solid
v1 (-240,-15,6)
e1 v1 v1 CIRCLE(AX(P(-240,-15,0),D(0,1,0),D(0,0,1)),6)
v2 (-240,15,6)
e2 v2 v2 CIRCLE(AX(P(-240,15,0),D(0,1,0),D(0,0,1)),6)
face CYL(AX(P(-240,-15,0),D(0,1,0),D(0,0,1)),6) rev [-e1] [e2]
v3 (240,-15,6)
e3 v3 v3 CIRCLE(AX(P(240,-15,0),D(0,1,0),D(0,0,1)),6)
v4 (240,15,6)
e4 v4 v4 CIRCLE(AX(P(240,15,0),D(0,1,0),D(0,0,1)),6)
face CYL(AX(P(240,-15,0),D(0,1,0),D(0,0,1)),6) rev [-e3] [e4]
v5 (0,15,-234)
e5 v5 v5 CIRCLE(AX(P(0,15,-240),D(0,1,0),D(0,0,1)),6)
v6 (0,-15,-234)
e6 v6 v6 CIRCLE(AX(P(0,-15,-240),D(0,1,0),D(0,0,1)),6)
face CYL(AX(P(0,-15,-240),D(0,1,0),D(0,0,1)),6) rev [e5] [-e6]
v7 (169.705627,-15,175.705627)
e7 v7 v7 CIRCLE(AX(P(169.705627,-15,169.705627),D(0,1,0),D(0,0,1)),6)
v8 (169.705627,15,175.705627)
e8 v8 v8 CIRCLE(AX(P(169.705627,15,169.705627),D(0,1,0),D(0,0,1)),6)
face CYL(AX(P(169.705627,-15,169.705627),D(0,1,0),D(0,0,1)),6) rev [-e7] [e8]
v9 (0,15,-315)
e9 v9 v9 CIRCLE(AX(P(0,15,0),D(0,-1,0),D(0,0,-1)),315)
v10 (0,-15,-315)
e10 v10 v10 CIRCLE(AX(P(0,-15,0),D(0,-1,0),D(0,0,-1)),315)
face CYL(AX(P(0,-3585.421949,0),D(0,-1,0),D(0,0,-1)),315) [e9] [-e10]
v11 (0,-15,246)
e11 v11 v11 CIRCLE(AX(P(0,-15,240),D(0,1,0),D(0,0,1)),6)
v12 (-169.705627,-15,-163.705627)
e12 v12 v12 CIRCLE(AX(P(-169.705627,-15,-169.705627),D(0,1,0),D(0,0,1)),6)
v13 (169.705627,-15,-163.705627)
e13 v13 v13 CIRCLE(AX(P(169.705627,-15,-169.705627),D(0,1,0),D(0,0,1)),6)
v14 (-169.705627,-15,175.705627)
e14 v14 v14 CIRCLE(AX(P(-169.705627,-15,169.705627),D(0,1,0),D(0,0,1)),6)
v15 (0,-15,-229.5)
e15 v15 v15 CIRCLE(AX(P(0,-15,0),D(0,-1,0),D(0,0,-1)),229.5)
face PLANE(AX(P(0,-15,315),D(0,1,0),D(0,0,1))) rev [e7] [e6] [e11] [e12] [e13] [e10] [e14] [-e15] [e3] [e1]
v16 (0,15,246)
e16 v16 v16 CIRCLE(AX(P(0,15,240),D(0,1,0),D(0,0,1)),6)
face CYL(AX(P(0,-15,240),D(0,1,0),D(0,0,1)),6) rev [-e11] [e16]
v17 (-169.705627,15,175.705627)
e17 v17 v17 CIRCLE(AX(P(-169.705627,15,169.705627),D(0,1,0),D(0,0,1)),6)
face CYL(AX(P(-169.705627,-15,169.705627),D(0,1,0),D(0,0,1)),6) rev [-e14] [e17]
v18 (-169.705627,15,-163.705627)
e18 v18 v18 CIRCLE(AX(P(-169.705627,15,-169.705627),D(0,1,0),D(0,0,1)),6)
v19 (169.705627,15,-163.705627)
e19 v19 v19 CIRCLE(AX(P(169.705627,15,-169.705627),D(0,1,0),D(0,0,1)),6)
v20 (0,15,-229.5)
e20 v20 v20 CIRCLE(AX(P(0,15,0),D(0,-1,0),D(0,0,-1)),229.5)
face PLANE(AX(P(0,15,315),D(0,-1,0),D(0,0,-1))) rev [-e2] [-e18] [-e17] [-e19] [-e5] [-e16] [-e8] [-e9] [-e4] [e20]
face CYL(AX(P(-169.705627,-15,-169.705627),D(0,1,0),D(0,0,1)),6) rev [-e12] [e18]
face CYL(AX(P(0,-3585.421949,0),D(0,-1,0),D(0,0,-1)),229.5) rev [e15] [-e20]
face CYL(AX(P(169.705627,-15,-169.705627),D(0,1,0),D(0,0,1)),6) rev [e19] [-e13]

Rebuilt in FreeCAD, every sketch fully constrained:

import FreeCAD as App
import Part
import Sketcher

V = App.Vector
Q = App.Units.Quantity

doc = App.newDocument("Part")
body = doc.addObject("PartDesign::Body", "Body")

# Sketch on YZ plane
sketch1 = body.newObject("Sketcher::SketchObject", "Sketch")
sketch1.AttachmentSupport = (doc.getObject("YZ_Plane"), [""])
sketch1.MapMode = "FlatFace"
sketch1.addGeometry(Part.LineSegment(V(15, 315, 0), V(-15, 315, 0)), False)
sketch1.addGeometry(Part.LineSegment(V(-15, 315, 0), V(-15, 230, 0)), False)
sketch1.addGeometry(Part.LineSegment(V(-15, 230, 0), V(15, 230, 0)), False)
sketch1.addGeometry(Part.LineSegment(V(15, 230, 0), V(15, 315, 0)), False)
sketch1.addConstraint(Sketcher.Constraint("Coincident", 0, 2, 1, 1))
sketch1.addConstraint(Sketcher.Constraint("Coincident", 1, 2, 2, 1))
sketch1.addConstraint(Sketcher.Constraint("Coincident", 2, 2, 3, 1))
sketch1.addConstraint(Sketcher.Constraint("Coincident", 3, 2, 0, 1))
sketch1.addConstraint(Sketcher.Constraint("Horizontal", 0))
sketch1.addConstraint(Sketcher.Constraint("Vertical", 1))
sketch1.addConstraint(Sketcher.Constraint("Horizontal", 2))
sketch1.addConstraint(Sketcher.Constraint("Vertical", 3))
sketch1.addConstraint(Sketcher.Constraint("DistanceX", 0, 2, 0, 1, Q("30 mm")))
sketch1.addConstraint(Sketcher.Constraint("DistanceY", 1, 2, 1, 1, Q("85.5 mm")))
sketch1.addConstraint(Sketcher.Constraint("DistanceX", 0, 2, -1, 1, Q("15 mm")))
sketch1.addConstraint(Sketcher.Constraint("DistanceY", -1, 1, 0, 2, Q("315 mm")))
revolution = body.newObject("PartDesign::Revolution", "Revolution")
revolution.Profile = sketch1
revolution.ReferenceAxis = (sketch1, ["H_Axis"])
revolution.Angle = 360

# Sketch on XZ plane
sketch2 = body.newObject("Sketcher::SketchObject", "Sketch001")
sketch2.AttachmentSupport = (doc.getObject("XZ_Plane"), [""])
sketch2.MapMode = "FlatFace"
sketch2.AttachmentOffset = App.Placement(V(0, 0, -15), App.Rotation())
sketch2.addGeometry(Part.Circle(V(0, -240, 0), V(0, 0, 1), 6), False)
sketch2.addGeometry(Part.Circle(V(170, -170, 0), V(0, 0, 1), 6), False)
sketch2.addGeometry(Part.Circle(V(240, 0, 0), V(0, 0, 1), 6), False)
sketch2.addGeometry(Part.Circle(V(170, 170, 0), V(0, 0, 1), 6), False)
sketch2.addGeometry(Part.Circle(V(0, 240, 0), V(0, 0, 1), 6), False)
sketch2.addGeometry(Part.Circle(V(-170, 170, 0), V(0, 0, 1), 6), False)
sketch2.addGeometry(Part.Circle(V(-240, 0, 0), V(0, 0, 1), 6), False)
sketch2.addGeometry(Part.Circle(V(-170, -170, 0), V(0, 0, 1), 6), False)
sketch2.addConstraint(Sketcher.Constraint("Equal", 0, 1))
sketch2.addConstraint(Sketcher.Constraint("Equal", 1, 2))
sketch2.addConstraint(Sketcher.Constraint("Equal", 2, 3))
sketch2.addConstraint(Sketcher.Constraint("Equal", 3, 4))
sketch2.addConstraint(Sketcher.Constraint("Equal", 4, 5))
sketch2.addConstraint(Sketcher.Constraint("Equal", 5, 6))
sketch2.addConstraint(Sketcher.Constraint("Equal", 6, 7))
sketch2.addConstraint(Sketcher.Constraint("Symmetric", 0, 3, 4, 3, -1, 1))
sketch2.addConstraint(Sketcher.Constraint("Symmetric", 1, 3, 5, 3, -1, 1))
sketch2.addConstraint(Sketcher.Constraint("Symmetric", 2, 3, 6, 3, -1, 1))
sketch2.addConstraint(Sketcher.Constraint("Symmetric", 3, 3, 7, 3, -1, 1))
sketch2.addConstraint(Sketcher.Constraint("Symmetric", 3, 3, 5, 3, -2))
sketch2.addConstraint(Sketcher.Constraint("PointOnObject", 0, 3, -2))
sketch2.addConstraint(Sketcher.Constraint("PointOnObject", 2, 3, -1))
sketch2.addConstraint(Sketcher.Constraint("Diameter", 0, Q("12 mm")))
sketch2.addConstraint(Sketcher.Constraint("DistanceY", 0, 3, -1, 1, Q("240 mm")))
sketch2.addConstraint(Sketcher.Constraint("DistanceX", -1, 1, 2, 3, Q("240 mm")))
sketch2.addConstraint(Sketcher.Constraint("DistanceX", -1, 1, 1, 3, Q("169.705627 mm")))
sketch2.addConstraint(Sketcher.Constraint("DistanceY", 1, 3, -1, 1, Q("169.705627 mm")))
pocket1 = body.newObject("PartDesign::Pocket", "Pocket")
pocket1.Profile = sketch2
pocket1.Type = "ThroughAll"
pocket1.Reversed = True

doc.recompute()
